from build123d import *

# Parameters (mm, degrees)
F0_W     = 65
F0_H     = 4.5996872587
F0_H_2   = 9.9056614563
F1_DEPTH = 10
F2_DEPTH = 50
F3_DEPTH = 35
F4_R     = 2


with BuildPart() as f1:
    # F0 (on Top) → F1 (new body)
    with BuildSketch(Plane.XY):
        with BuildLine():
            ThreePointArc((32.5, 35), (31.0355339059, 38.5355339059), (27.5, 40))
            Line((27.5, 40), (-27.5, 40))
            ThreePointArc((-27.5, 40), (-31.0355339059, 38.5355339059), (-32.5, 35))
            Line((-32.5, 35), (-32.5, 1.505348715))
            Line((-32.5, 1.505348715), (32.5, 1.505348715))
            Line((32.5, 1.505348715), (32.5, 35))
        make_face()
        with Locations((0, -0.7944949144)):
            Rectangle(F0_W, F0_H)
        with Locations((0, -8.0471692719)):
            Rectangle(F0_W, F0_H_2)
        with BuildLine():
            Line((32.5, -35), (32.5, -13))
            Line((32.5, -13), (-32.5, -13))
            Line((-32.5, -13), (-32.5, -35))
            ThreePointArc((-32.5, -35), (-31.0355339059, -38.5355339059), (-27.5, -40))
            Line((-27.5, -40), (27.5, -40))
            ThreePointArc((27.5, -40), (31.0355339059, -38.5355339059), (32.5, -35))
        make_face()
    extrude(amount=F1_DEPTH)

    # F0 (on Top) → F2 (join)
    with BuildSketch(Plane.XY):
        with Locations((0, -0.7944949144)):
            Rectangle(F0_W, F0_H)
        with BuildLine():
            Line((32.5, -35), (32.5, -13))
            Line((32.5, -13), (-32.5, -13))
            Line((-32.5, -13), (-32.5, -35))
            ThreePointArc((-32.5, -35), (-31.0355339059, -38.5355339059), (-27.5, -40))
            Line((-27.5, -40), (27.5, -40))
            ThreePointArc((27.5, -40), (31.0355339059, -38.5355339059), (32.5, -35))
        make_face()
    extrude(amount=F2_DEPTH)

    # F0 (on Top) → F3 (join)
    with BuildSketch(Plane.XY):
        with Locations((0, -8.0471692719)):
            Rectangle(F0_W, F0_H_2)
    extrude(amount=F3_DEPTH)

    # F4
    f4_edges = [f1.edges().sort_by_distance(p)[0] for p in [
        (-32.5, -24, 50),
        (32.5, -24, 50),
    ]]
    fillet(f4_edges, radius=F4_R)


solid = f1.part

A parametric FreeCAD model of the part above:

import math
import FreeCAD as App
import Part
import Sketcher

V = App.Vector


def edges_at(feature, points):
    """Names of the edges that pass closest to the given points."""
    edges = feature.Shape.Edges
    near = lambda p: min(range(len(edges)), key=lambda i: edges[i].distToShape(Part.Vertex(*p))[0])
    return sorted({f"Edge{near(p) + 1}" for p in points})

doc = App.newDocument("Part")
body = doc.addObject("PartDesign::Body", "Body")

sketch1 = body.newObject("Sketcher::SketchObject", "Sketch")
sketch1.AttachmentSupport = (doc.getObject("XY_Plane"), [""])
sketch1.MapMode = "FlatFace"
sketch1.addGeometry(Part.ArcOfCircle(Part.Circle(V(28, 35, 0), V(0, 0, 1), 5), math.radians(0), math.radians(90)), False)
sketch1.addGeometry(Part.LineSegment(V(28, 40, 0), V(-28, 40, 0)), False)
sketch1.addGeometry(Part.ArcOfCircle(Part.Circle(V(-28, 35, 0), V(0, 0, 1), 5), math.radians(90), math.radians(180)), False)
sketch1.addGeometry(Part.LineSegment(V(-32, 35, 0), V(-32, -35, 0)), False)
sketch1.addGeometry(Part.ArcOfCircle(Part.Circle(V(-28, -35, 0), V(0, 0, 1), 5), math.radians(180), math.radians(270)), False)
sketch1.addGeometry(Part.LineSegment(V(-28, -40, 0), V(28, -40, 0)), False)
sketch1.addGeometry(Part.ArcOfCircle(Part.Circle(V(28, -35, 0), V(0, 0, 1), 5), math.radians(-90), math.radians(0)), False)
sketch1.addGeometry(Part.LineSegment(V(32, -35, 0), V(32, 35, 0)), False)
sketch1.addConstraint(Sketcher.Constraint("Tangent", 0, 2, 1, 1))
sketch1.addConstraint(Sketcher.Constraint("Tangent", 1, 2, 2, 1))
sketch1.addConstraint(Sketcher.Constraint("Tangent", 2, 2, 3, 1))
sketch1.addConstraint(Sketcher.Constraint("Tangent", 3, 2, 4, 1))
sketch1.addConstraint(Sketcher.Constraint("Tangent", 4, 2, 5, 1))
sketch1.addConstraint(Sketcher.Constraint("Tangent", 5, 2, 6, 1))
sketch1.addConstraint(Sketcher.Constraint("Tangent", 6, 2, 7, 1))
sketch1.addConstraint(Sketcher.Constraint("Tangent", 7, 2, 0, 1))
sketch1.addConstraint(Sketcher.Constraint("Horizontal", 1))
sketch1.addConstraint(Sketcher.Constraint("Vertical", 3))
sketch1.addConstraint(Sketcher.Constraint("Horizontal", 5))
sketch1.addConstraint(Sketcher.Constraint("Vertical", 7))
sketch1.addConstraint(Sketcher.Constraint("Equal", 0, 2))
sketch1.addConstraint(Sketcher.Constraint("Equal", 2, 4))
sketch1.addConstraint(Sketcher.Constraint("Equal", 4, 6))
sketch1.addConstraint(Sketcher.Constraint("Symmetric", 0, 3, 4, 3, -1, 1))
sketch1.addConstraint(Sketcher.Constraint("Radius", 0, 5.0))
sketch1.addConstraint(Sketcher.Constraint("DistanceX", 1, 2, 1, 1, 55.0))
sketch1.addConstraint(Sketcher.Constraint("DistanceY", 3, 2, 3, 1, 70.0))
pad1 = body.newObject("PartDesign::Pad", "Pad")
pad1.Profile = sketch1
pad1.Length = 10

sketch2 = body.newObject("Sketcher::SketchObject", "Sketch001")
sketch2.AttachmentSupport = (doc.getObject("XY_Plane"), [""])
sketch2.MapMode = "FlatFace"
sketch2.addGeometry(Part.LineSegment(V(-32.5, 1.5, 0), V(-32.5, -3.1, 0)), False)
sketch2.addGeometry(Part.LineSegment(V(-32.5, -3.1, 0), V(32.5, -3.1, 0)), False)
sketch2.addGeometry(Part.LineSegment(V(32.5, -3.1, 0), V(32.5, 1.5, 0)), False)
sketch2.addGeometry(Part.LineSegment(V(32.5, 1.5, 0), V(-32.5, 1.5, 0)), False)
sketch2.addGeometry(Part.LineSegment(V(32.5, -35, 0), V(32.5, -13, 0)), False)
sketch2.addGeometry(Part.LineSegment(V(32.5, -13, 0), V(-32.5, -13, 0)), False)
sketch2.addGeometry(Part.LineSegment(V(-32.5, -13, 0), V(-32.5, -35, 0)), False)
sketch2.addGeometry(Part.ArcOfCircle(Part.Circle(V(-27.5, -35, 0), V(0, 0, 1), 5), math.radians(180), math.radians(270)), False)
sketch2.addGeometry(Part.LineSegment(V(-27.5, -40, 0), V(27.5, -40, 0)), False)
sketch2.addGeometry(Part.ArcOfCircle(Part.Circle(V(27.5, -35, 0), V(0, 0, 1), 5), math.radians(-90), math.radians(0)), False)
sketch2.addConstraint(Sketcher.Constraint("Coincident", 0, 2, 1, 1))
sketch2.addConstraint(Sketcher.Constraint("Coincident", 1, 2, 2, 1))
sketch2.addConstraint(Sketcher.Constraint("Coincident", 2, 2, 3, 1))
sketch2.addConstraint(Sketcher.Constraint("Coincident", 3, 2, 0, 1))
sketch2.addConstraint(Sketcher.Constraint("Coincident", 4, 2, 5, 1))
sketch2.addConstraint(Sketcher.Constraint("Coincident", 5, 2, 6, 1))
sketch2.addConstraint(Sketcher.Constraint("Tangent", 6, 2, 7, 1))
sketch2.addConstraint(Sketcher.Constraint("Tangent", 7, 2, 8, 1))
sketch2.addConstraint(Sketcher.Constraint("Tangent", 8, 2, 9, 1))
sketch2.addConstraint(Sketcher.Constraint("Tangent", 9, 2, 4, 1))
sketch2.addConstraint(Sketcher.Constraint("Vertical", 0))
sketch2.addConstraint(Sketcher.Constraint("Horizontal", 1))
sketch2.addConstraint(Sketcher.Constraint("Vertical", 2))
sketch2.addConstraint(Sketcher.Constraint("Horizontal", 3))
sketch2.addConstraint(Sketcher.Constraint("Vertical", 4))
sketch2.addConstraint(Sketcher.Constraint("Horizontal", 5))
sketch2.addConstraint(Sketcher.Constraint("Vertical", 6))
sketch2.addConstraint(Sketcher.Constraint("Horizontal", 8))
sketch2.addConstraint(Sketcher.Constraint("Equal", 7, 9))
sketch2.addConstraint(Sketcher.Constraint("Vertical", 2, 2, 4, 2))
sketch2.addConstraint(Sketcher.Constraint("Vertical", 3, 2, 5, 2))
sketch2.addConstraint(Sketcher.Constraint("Radius", 7, 5.0))
sketch2.addConstraint(Sketcher.Constraint("DistanceX", 1, 1, 1, 2, 65.0))
sketch2.addConstraint(Sketcher.Constraint("DistanceY", 4, 1, 4, 2, 22.0))
sketch2.addConstraint(Sketcher.Constraint("DistanceY", 7, 3, -1, 1, 35.0))
sketch2.addConstraint(Sketcher.Constraint("DistanceX", 7, 3, -1, 1, 27.5))
sketch2.addConstraint(Sketcher.Constraint("DistanceY", 0, 2, 0, 1, 4.599687))
sketch2.addConstraint(Sketcher.Constraint("DistanceY", 0, 2, -1, 1, 3.094339))
pad2 = body.newObject("PartDesign::Pad", "Pad001")
pad2.Profile = sketch2
pad2.Length = 50

sketch3 = body.newObject("Sketcher::SketchObject", "Sketch002")
sketch3.AttachmentSupport = (doc.getObject("XY_Plane"), [""])
sketch3.MapMode = "FlatFace"
sketch3.addGeometry(Part.LineSegment(V(-32, -3, 0), V(-32, -13, 0)), False)
sketch3.addGeometry(Part.LineSegment(V(-32, -13, 0), V(32, -13, 0)), False)
sketch3.addGeometry(Part.LineSegment(V(32, -13, 0), V(32, -3, 0)), False)
sketch3.addGeometry(Part.LineSegment(V(32, -3, 0), V(-32, -3, 0)), False)
sketch3.addConstraint(Sketcher.Constraint("Coincident", 0, 2, 1, 1))
sketch3.addConstraint(Sketcher.Constraint("Coincident", 1, 2, 2, 1))
sketch3.addConstraint(Sketcher.Constraint("Coincident", 2, 2, 3, 1))
sketch3.addConstraint(Sketcher.Constraint("Coincident", 3, 2, 0, 1))
sketch3.addConstraint(Sketcher.Constraint("Vertical", 0))
sketch3.addConstraint(Sketcher.Constraint("Horizontal", 1))
sketch3.addConstraint(Sketcher.Constraint("Vertical", 2))
sketch3.addConstraint(Sketcher.Constraint("Horizontal", 3))
sketch3.addConstraint(Sketcher.Constraint("DistanceX", 1, 1, 1, 2, 65.0))
sketch3.addConstraint(Sketcher.Constraint("DistanceY", 0, 2, -1, 1, 13.0))
sketch3.addConstraint(Sketcher.Constraint("DistanceX", 0, 2, -1, 1, 32.5))
sketch3.addConstraint(Sketcher.Constraint("DistanceY", 0, 2, 0, 1, 9.905661))
pad3 = body.newObject("PartDesign::Pad", "Pad002")
pad3.Profile = sketch3
pad3.Length = 35
doc.recompute()

fillet = body.newObject("PartDesign::Fillet", "Fillet")
fillet.Base = (pad3, edges_at(pad3, [(-32.5, -24, 50), (32.5, -24, 50)]))
fillet.Radius = 2

doc.recompute()
